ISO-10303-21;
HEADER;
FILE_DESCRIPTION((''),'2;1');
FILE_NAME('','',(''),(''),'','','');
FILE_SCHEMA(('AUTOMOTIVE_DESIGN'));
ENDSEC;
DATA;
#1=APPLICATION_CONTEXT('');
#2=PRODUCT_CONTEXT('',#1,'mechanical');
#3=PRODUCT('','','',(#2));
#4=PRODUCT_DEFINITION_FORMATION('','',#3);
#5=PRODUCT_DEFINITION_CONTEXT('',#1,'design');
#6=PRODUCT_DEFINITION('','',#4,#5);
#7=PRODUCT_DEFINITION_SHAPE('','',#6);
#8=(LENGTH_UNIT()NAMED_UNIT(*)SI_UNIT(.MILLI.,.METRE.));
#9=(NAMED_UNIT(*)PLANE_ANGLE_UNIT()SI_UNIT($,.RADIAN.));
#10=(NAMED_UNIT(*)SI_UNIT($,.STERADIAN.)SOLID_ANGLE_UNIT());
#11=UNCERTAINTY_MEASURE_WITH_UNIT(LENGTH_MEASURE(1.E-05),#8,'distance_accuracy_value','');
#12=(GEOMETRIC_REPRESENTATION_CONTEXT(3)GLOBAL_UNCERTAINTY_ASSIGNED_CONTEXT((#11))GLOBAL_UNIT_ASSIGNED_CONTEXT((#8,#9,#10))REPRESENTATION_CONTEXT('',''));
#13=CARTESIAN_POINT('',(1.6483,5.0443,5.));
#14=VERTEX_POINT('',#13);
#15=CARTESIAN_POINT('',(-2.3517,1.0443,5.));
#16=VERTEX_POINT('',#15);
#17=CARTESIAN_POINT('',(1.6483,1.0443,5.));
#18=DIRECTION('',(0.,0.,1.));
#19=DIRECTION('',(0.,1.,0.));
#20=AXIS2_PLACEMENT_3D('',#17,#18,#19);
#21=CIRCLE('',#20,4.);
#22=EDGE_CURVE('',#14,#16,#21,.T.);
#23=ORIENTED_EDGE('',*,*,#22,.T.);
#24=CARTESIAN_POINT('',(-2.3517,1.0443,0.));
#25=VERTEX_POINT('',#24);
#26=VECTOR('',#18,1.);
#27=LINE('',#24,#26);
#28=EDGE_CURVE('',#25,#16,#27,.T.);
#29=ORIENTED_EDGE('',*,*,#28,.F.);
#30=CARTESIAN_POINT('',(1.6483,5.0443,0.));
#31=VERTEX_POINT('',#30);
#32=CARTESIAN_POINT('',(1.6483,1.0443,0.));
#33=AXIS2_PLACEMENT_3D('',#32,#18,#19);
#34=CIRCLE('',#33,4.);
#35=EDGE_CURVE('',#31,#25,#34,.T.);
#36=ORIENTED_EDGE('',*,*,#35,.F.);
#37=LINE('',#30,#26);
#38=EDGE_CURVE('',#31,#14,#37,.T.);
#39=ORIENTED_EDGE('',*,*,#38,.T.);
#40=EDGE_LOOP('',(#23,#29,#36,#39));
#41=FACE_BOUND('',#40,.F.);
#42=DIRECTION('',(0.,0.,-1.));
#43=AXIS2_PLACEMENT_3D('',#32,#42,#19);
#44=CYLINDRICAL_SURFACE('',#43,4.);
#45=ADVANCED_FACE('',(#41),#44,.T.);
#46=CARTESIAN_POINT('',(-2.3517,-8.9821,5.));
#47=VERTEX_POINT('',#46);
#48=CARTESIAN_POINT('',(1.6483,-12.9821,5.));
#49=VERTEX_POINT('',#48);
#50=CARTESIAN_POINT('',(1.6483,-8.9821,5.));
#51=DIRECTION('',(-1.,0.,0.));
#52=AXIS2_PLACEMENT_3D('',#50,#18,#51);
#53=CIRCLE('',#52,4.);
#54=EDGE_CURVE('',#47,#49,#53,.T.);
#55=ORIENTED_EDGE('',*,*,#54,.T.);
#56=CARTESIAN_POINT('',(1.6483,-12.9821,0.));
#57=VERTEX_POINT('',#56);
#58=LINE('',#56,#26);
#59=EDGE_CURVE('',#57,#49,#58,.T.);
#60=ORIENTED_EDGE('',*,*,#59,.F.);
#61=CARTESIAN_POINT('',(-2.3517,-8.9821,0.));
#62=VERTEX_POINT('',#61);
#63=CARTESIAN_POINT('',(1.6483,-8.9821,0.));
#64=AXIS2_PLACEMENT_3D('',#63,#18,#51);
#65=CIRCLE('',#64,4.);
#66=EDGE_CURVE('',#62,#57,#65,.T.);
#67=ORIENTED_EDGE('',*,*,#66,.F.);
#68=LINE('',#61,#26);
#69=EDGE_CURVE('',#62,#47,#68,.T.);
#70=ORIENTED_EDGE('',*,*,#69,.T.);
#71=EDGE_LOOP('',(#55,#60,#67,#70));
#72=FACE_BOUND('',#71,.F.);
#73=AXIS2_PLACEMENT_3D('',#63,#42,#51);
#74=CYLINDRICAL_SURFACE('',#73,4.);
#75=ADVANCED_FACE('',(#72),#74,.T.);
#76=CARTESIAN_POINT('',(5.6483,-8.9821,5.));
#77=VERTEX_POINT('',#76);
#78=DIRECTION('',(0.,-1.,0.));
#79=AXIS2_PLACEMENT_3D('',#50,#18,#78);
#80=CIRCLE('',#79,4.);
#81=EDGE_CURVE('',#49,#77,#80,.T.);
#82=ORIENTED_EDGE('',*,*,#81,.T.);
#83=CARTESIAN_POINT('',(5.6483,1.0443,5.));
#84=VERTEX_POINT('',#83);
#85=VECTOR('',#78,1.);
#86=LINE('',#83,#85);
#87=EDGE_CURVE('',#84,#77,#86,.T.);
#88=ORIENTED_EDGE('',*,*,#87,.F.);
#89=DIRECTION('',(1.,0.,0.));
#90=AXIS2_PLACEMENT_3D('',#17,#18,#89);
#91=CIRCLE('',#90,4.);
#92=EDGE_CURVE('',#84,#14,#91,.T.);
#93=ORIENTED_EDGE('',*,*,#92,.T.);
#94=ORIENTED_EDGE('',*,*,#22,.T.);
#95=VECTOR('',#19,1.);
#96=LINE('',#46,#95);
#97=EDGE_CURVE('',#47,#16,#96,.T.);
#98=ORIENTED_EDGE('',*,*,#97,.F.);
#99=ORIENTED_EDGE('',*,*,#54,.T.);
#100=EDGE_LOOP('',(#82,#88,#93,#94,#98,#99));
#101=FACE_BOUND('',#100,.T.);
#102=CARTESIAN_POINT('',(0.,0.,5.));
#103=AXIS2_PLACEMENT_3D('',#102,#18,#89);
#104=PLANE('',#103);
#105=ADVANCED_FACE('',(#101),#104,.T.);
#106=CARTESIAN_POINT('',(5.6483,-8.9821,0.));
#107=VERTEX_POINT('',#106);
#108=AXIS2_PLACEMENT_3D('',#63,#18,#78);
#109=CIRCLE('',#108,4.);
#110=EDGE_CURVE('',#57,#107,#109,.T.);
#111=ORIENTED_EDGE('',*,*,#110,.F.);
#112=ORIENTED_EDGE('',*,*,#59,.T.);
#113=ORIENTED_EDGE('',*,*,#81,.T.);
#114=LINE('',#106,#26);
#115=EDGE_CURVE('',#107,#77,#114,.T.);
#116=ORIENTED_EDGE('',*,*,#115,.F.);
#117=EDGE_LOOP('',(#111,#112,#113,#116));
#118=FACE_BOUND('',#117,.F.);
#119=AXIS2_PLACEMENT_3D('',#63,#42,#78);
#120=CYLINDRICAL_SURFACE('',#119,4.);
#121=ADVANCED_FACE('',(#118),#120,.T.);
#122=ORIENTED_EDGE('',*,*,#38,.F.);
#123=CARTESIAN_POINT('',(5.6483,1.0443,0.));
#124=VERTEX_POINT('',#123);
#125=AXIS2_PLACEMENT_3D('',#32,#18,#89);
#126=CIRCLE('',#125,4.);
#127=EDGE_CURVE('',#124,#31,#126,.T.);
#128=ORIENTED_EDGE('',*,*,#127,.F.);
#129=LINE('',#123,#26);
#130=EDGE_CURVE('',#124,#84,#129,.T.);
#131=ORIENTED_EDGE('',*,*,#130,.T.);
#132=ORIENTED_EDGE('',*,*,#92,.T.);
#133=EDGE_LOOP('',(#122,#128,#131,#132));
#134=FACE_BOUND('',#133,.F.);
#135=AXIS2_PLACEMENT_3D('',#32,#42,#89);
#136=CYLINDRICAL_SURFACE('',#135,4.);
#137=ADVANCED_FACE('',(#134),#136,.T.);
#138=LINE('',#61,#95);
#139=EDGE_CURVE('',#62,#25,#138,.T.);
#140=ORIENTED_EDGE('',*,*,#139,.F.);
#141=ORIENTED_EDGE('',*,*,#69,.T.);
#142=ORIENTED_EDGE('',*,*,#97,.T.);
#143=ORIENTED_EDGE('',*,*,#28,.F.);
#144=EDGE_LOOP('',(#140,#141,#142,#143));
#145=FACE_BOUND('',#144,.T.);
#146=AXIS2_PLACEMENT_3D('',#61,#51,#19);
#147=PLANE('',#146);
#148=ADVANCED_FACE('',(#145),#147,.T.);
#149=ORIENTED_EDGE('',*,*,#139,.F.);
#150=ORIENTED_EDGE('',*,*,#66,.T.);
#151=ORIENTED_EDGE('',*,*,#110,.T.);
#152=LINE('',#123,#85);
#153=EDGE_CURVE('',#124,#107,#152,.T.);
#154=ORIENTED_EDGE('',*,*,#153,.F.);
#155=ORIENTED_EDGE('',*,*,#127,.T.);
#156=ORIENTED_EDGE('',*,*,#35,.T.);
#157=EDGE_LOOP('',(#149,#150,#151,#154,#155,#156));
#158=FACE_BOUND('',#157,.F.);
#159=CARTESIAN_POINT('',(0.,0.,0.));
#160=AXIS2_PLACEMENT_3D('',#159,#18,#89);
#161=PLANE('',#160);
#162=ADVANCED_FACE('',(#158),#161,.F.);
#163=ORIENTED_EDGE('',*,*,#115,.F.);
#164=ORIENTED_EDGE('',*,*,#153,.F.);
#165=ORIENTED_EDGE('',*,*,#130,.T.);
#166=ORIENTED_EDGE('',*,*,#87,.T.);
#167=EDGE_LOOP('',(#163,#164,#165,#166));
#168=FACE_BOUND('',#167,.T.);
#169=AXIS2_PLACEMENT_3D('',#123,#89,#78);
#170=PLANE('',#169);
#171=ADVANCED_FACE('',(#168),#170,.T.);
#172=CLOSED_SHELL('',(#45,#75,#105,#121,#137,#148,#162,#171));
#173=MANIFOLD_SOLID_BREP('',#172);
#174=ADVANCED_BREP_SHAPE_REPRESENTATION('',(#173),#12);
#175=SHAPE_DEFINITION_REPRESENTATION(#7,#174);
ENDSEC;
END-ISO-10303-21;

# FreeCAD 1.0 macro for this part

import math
import FreeCAD as App
import Part
import Sketcher
from FreeCAD import Vector
Q = App.Units.Quantity

doc = App.newDocument("Part")
body = doc.addObject("PartDesign::Body", "Body")

# Sketch on XY plane
sketch1 = doc.addObject("Sketcher::SketchObject", "Sketch")
body.addObject(sketch1)
sketch1.AttachmentSupport = (doc.XY_Plane, [""])
sketch1.MapMode = "FlatFace"
sketch1.addGeometry(Part.LineSegment(Vector(5.6483, -8.9821, 0), Vector(5.6483, 1.0443, 0)), False)
sketch1.addGeometry(Part.ArcOfCircle(Part.Circle(Vector(1.6483, 1.0443, 0), Vector(0, 0, 1), 4), math.radians(0), math.radians(180)), False)
sketch1.addGeometry(Part.LineSegment(Vector(-2.3517, 1.0443, 0), Vector(-2.3517, -8.9821, 0)), False)
sketch1.addGeometry(Part.ArcOfCircle(Part.Circle(Vector(1.6483, -8.9821, 0), Vector(0, 0, 1), 4), math.radians(180), math.radians(360)), False)
sketch1.addConstraint(Sketcher.Constraint("Tangent", 0, 2, 1, 1))
sketch1.addConstraint(Sketcher.Constraint("Tangent", 1, 2, 2, 1))
sketch1.addConstraint(Sketcher.Constraint("Tangent", 2, 2, 3, 1))
sketch1.addConstraint(Sketcher.Constraint("Tangent", 3, 2, 0, 1))
sketch1.addConstraint(Sketcher.Constraint("Vertical", 0))
sketch1.addConstraint(Sketcher.Constraint("Vertical", 2))
sketch1.addConstraint(Sketcher.Constraint("Radius", 1, Q("4 mm")))
sketch1.addConstraint(Sketcher.Constraint("DistanceY", 0, 1, 0, 2, Q("10.0264 mm")))
sketch1.addConstraint(Sketcher.Constraint("DistanceY", 3, 3, -1, 1, Q("8.982 mm")))
sketch1.addConstraint(Sketcher.Constraint("DistanceX", -1, 1, 1, 3, Q("1.6483 mm")))
pad1 = doc.addObject("PartDesign::Pad", "Pad")
body.addObject(pad1)
pad1.Profile = sketch1
pad1.Length = 5

doc.recompute()
